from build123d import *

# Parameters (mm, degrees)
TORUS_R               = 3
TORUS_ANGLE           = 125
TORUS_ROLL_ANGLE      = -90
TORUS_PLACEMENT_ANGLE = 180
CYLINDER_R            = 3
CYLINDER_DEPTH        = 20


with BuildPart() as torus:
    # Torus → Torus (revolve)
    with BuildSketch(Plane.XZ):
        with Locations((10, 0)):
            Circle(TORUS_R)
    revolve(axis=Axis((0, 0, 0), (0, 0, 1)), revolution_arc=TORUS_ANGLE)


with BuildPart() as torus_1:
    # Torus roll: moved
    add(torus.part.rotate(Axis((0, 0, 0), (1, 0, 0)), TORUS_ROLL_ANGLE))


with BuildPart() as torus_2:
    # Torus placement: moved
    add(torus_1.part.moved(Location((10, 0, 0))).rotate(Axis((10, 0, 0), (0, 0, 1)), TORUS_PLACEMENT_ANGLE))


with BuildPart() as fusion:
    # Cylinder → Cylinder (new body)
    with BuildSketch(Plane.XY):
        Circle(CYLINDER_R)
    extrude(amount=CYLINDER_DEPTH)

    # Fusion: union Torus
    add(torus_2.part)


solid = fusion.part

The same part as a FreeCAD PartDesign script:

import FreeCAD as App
import Part
import Sketcher

V = App.Vector
Q = App.Units.Quantity

doc = App.newDocument("Part")
body = doc.addObject("PartDesign::Body", "Body")

# Sketch on XZ plane
sketch1 = body.newObject("Sketcher::SketchObject", "Sketch")
sketch1.AttachmentSupport = (doc.getObject("XZ_Plane"), [""])
sketch1.MapMode = "FlatFace"
sketch1.addGeometry(Part.Circle(V(10, 0, 0), V(0, 0, 1), 3), False)
sketch1.addConstraint(Sketcher.Constraint("PointOnObject", 0, 3, -1))
sketch1.addConstraint(Sketcher.Constraint("Diameter", 0, Q("6 mm")))
sketch1.addConstraint(Sketcher.Constraint("DistanceX", -1, 1, 0, 3, Q("10 mm")))
revolution = body.newObject("PartDesign::Revolution", "Revolution")
revolution.Profile = sketch1
revolution.ReferenceAxis = (sketch1, ["V_Axis"])
revolution.Angle = 125
body2 = doc.addObject("PartDesign::Body", "Body001")
doc.recompute()

body.Placement = App.Placement(V(0, 0, 0), App.Rotation(V(1, 0, 0), 270))
boolean = body2.newObject("PartDesign::Boolean", "Boolean")
boolean.Type = "Fuse"
boolean.addObjects([body])
body3 = doc.addObject("PartDesign::Body", "Body002")
doc.recompute()

body2.Placement = App.Placement(V(10, 0, 0), App.Rotation(V(0, 0, 1), 180))
boolean2 = body3.newObject("PartDesign::Boolean", "Boolean001")
boolean2.Type = "Fuse"
boolean2.addObjects([body2])
body4 = doc.addObject("PartDesign::Body", "Body003")

# Sketch on XY plane
sketch2 = body4.newObject("Sketcher::SketchObject", "Sketch001")
sketch2.AttachmentSupport = (doc.getObject("XY_Plane003"), [""])
sketch2.MapMode = "FlatFace"
sketch2.addGeometry(Part.Circle(V(0, 0, 0), V(0, 0, 1), 3), False)
sketch2.addConstraint(Sketcher.Constraint("Coincident", 0, 3, -1, 1))
sketch2.addConstraint(Sketcher.Constraint("Diameter", 0, Q("6 mm")))
pad1 = body4.newObject("PartDesign::Pad", "Pad")
pad1.Profile = sketch2
pad1.Length = 20
doc.recompute()

boolean3 = body4.newObject("PartDesign::Boolean", "Boolean002")
boolean3.Type = "Fuse"
boolean3.addObjects([body3])

doc.recompute()
